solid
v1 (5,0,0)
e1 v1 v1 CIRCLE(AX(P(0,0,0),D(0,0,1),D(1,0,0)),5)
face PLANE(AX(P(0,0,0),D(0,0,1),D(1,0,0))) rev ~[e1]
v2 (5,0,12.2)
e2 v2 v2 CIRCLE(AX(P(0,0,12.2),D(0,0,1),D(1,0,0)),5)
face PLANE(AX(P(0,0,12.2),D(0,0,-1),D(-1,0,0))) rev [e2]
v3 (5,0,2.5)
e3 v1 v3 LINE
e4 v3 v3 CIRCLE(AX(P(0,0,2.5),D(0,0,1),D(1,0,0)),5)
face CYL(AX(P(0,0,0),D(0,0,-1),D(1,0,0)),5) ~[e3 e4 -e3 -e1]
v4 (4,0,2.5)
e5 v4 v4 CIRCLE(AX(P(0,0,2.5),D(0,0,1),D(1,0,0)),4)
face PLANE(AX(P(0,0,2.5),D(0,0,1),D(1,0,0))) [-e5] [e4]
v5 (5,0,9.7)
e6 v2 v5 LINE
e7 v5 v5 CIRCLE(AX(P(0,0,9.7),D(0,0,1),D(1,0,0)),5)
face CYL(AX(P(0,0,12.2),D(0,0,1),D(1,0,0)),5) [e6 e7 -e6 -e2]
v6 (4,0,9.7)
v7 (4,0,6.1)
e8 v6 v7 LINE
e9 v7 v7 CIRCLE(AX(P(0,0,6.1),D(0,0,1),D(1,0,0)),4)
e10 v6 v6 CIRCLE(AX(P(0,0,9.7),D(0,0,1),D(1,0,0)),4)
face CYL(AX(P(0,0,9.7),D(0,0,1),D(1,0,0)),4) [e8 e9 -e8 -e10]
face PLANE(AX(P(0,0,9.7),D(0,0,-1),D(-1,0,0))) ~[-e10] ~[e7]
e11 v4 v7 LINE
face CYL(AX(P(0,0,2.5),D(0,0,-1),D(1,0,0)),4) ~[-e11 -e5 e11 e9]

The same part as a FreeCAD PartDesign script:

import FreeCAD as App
import Part
import Sketcher

V = App.Vector
Q = App.Units.Quantity

doc = App.newDocument("Part")
body = doc.addObject("PartDesign::Body", "Body")

# Sketch on XY plane
sketch1 = body.newObject("Sketcher::SketchObject", "Sketch")
sketch1.AttachmentSupport = (doc.getObject("XY_Plane"), [""])
sketch1.MapMode = "FlatFace"
sketch1.addGeometry(Part.Circle(V(0, 0, 0), V(0, 0, 1), 5), False)
sketch1.addConstraint([
    Sketcher.Constraint("Coincident", 0, 3, -1, 1),
    Sketcher.Constraint("Diameter", 0, Q("10 mm")),
])
pad1 = body.newObject("PartDesign::Pad", "Pad")
pad1.Profile = sketch1
pad1.Length = 2.5

# Sketch on XY plane
sketch2 = body.newObject("Sketcher::SketchObject", "Sketch001")
sketch2.AttachmentSupport = (doc.getObject("XY_Plane"), [""])
sketch2.MapMode = "FlatFace"
sketch2.AttachmentOffset = App.Placement(V(0, 0, 2.5), App.Rotation())
sketch2.addGeometry(Part.Circle(V(0, 0, 0), V(0, 0, 1), 4), False)
sketch2.addConstraint([
    Sketcher.Constraint("Coincident", 0, 3, -1, 1),
    Sketcher.Constraint("Diameter", 0, Q("8 mm")),
])
pad2 = body.newObject("PartDesign::Pad", "Pad001")
pad2.Profile = sketch2
pad2.Length = 3.6
body2 = doc.addObject("PartDesign::Body", "Body001")
doc.recompute()

body2.BaseFeature = body
doc.recompute()

mirroring = doc.addObject("Part::Mirroring", "Mirroring")
mirroring.Source = body
mirroring.Base = V(0, 0, 6.1)
mirroring.Normal = V(0, 0, 1)
body3 = doc.addObject("PartDesign::Body", "Body002")
body3.BaseFeature = mirroring
boolean = body2.newObject("PartDesign::Boolean", "Boolean")
boolean.Type = "Fuse"
boolean.addObjects([body3])
doc.recompute()
mirroring.Visibility = False

doc.recompute()
